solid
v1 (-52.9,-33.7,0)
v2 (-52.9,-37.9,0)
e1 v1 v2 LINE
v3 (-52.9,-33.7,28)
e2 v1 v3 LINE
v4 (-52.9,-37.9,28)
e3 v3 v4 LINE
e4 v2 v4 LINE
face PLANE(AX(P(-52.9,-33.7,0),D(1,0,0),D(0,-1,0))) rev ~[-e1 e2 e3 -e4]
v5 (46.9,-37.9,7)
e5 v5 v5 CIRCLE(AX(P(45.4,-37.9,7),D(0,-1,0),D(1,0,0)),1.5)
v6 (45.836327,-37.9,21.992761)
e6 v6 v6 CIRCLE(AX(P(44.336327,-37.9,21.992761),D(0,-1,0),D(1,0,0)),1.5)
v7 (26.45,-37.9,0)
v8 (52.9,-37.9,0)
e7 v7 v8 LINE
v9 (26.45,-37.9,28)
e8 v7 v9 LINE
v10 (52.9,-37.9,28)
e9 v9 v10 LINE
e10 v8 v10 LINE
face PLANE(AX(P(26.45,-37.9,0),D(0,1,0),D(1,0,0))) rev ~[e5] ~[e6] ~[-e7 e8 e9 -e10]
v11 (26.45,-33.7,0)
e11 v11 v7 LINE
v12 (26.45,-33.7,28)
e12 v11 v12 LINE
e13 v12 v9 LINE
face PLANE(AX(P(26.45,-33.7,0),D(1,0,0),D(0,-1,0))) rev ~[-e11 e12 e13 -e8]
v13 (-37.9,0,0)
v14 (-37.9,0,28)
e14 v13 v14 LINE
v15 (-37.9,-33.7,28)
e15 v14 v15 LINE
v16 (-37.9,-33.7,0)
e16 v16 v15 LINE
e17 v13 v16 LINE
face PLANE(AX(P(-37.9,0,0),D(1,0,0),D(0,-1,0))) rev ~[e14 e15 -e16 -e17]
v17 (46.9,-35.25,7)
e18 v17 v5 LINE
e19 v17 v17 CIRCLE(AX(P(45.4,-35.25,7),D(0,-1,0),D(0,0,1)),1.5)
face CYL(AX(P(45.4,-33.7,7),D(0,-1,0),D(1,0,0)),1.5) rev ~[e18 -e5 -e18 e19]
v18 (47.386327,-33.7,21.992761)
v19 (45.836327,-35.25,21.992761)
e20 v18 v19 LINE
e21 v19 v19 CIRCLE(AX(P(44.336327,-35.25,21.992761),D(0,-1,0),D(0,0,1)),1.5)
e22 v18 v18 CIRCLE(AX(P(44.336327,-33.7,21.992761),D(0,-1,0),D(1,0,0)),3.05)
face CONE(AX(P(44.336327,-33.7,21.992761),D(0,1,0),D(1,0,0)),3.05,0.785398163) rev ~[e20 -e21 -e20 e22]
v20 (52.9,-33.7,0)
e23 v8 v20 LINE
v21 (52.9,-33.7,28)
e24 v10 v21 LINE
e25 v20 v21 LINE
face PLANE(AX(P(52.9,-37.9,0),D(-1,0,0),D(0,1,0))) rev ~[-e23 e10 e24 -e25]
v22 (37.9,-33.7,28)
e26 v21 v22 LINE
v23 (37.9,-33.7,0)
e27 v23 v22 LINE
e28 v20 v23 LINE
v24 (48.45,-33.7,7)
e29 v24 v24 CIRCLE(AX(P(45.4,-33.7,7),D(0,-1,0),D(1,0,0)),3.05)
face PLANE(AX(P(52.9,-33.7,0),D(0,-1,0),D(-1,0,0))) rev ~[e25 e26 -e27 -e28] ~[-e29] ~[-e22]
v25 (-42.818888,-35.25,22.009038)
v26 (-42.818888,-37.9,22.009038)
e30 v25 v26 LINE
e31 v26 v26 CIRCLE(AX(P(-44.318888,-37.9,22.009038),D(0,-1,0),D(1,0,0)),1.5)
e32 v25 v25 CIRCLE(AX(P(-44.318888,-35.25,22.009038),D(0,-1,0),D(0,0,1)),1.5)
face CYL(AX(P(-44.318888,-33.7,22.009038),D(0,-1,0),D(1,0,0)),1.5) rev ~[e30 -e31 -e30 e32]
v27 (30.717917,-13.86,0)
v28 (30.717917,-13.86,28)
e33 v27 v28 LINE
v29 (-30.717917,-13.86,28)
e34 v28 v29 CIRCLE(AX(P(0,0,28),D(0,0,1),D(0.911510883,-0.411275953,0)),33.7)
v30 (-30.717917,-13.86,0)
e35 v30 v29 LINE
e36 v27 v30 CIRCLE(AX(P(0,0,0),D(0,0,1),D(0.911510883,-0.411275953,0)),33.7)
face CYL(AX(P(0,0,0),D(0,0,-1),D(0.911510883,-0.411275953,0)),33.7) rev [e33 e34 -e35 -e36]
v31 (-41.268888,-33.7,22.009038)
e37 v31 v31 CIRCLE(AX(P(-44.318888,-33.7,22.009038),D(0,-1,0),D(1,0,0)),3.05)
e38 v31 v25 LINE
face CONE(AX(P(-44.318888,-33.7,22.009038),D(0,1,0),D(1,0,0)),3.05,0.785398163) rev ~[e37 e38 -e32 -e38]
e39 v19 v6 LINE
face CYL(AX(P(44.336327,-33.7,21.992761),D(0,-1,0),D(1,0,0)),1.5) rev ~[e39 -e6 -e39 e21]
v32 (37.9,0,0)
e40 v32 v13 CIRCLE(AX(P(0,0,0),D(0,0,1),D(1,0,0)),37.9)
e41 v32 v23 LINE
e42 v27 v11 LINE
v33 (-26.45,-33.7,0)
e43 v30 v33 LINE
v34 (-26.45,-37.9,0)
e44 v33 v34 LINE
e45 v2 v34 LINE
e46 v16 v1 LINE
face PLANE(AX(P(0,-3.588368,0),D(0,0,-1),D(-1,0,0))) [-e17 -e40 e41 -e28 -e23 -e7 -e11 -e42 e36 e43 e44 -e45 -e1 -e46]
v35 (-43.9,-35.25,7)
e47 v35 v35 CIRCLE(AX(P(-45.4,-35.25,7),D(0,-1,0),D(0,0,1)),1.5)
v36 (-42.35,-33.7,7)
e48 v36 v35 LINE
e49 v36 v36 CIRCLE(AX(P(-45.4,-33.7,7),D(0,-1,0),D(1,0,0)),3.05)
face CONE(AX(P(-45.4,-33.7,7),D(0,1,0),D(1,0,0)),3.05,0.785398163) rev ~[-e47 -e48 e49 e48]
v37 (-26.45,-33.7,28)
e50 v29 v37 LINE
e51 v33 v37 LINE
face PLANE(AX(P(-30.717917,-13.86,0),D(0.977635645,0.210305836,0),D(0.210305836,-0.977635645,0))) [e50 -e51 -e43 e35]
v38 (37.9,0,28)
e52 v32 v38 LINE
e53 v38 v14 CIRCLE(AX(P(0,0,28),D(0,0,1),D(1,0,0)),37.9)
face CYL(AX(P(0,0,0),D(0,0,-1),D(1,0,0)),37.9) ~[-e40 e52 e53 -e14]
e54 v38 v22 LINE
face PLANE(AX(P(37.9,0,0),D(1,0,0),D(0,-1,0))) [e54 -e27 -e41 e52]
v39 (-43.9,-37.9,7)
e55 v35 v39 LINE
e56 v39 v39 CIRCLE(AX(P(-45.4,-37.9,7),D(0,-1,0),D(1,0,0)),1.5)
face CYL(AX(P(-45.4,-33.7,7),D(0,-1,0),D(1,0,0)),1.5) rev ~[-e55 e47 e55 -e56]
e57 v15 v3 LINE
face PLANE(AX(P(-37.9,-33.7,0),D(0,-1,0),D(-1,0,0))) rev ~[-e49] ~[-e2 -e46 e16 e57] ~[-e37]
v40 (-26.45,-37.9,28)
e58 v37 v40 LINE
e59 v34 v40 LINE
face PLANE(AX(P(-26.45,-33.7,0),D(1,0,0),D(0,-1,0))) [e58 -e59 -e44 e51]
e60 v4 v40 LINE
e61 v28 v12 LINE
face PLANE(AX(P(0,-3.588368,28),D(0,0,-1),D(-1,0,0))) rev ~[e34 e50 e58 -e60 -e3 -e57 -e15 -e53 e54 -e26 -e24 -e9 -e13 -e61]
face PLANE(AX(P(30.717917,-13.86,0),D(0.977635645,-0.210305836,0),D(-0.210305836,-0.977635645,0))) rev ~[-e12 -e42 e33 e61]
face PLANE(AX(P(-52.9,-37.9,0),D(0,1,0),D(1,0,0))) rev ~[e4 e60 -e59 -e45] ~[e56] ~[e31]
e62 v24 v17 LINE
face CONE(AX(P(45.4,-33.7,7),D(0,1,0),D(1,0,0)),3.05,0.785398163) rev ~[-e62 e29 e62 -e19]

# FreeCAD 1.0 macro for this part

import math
import FreeCAD as App
import Part
import Sketcher
from FreeCAD import Vector
Q = App.Units.Quantity

doc = App.newDocument("Part")
body = doc.addObject("PartDesign::Body", "Body")

sketch1 = body.newObject("Sketcher::SketchObject", "Sketch")
sketch1.AttachmentSupport = (doc.getObject("XY_Plane"), [""])
sketch1.MapMode = "FlatFace"
sketch1.addGeometry([
    Part.ArcOfCircle(Part.Circle(Vector(0, 0, 0), Vector(0, 0, 1), 33.7), math.radians(-24), math.radians(204)),
    Part.LineSegment(Vector(30.7, -13.9, 0), Vector(26.4, -33.7, 0)),
    Part.LineSegment(Vector(26.4, -33.7, 0), Vector(26.4, -37.9, 0)),
    Part.LineSegment(Vector(26.4, -37.9, 0), Vector(52.9, -37.9, 0)),
    Part.LineSegment(Vector(52.9, -37.9, 0), Vector(52.9, -33.7, 0)),
    Part.LineSegment(Vector(52.9, -33.7, 0), Vector(37.9, -33.7, 0)),
    Part.LineSegment(Vector(37.9, -33.7, 0), Vector(37.9, 0, 0)),
    Part.ArcOfCircle(Part.Circle(Vector(0, 0, 0), Vector(0, 0, 1), 37.9), math.radians(0), math.radians(180)),
    Part.LineSegment(Vector(-37.9, 0, 0), Vector(-37.9, -33.7, 0)),
    Part.LineSegment(Vector(-37.9, -33.7, 0), Vector(-52.9, -33.7, 0)),
    Part.LineSegment(Vector(-52.9, -33.7, 0), Vector(-52.9, -37.9, 0)),
    Part.LineSegment(Vector(-52.9, -37.9, 0), Vector(-26.4, -37.9, 0)),
    Part.LineSegment(Vector(-26.4, -37.9, 0), Vector(-26.4, -33.7, 0)),
    Part.LineSegment(Vector(-26.4, -33.7, 0), Vector(-30.7, -13.9, 0)),
], False)
sketch1.addConstraint([
    Sketcher.Constraint("Coincident", 0, 1, 1, 1),
    Sketcher.Constraint("Coincident", 1, 2, 2, 1),
    Sketcher.Constraint("Coincident", 2, 2, 3, 1),
    Sketcher.Constraint("Coincident", 3, 2, 4, 1),
    Sketcher.Constraint("Coincident", 4, 2, 5, 1),
    Sketcher.Constraint("Coincident", 5, 2, 6, 1),
    Sketcher.Constraint("Tangent", 6, 2, 7, 1),
    Sketcher.Constraint("Tangent", 7, 2, 8, 1),
    Sketcher.Constraint("Coincident", 8, 2, 9, 1),
    Sketcher.Constraint("Coincident", 9, 2, 10, 1),
    Sketcher.Constraint("Coincident", 10, 2, 11, 1),
    Sketcher.Constraint("Coincident", 11, 2, 12, 1),
    Sketcher.Constraint("Coincident", 12, 2, 13, 1),
    Sketcher.Constraint("Coincident", 13, 2, 0, 2),
    Sketcher.Constraint("Vertical", 2),
    Sketcher.Constraint("Horizontal", 3),
    Sketcher.Constraint("Vertical", 4),
    Sketcher.Constraint("Horizontal", 5),
    Sketcher.Constraint("Vertical", 6),
    Sketcher.Constraint("Vertical", 8),
    Sketcher.Constraint("Horizontal", 9),
    Sketcher.Constraint("Vertical", 10),
    Sketcher.Constraint("Horizontal", 11),
    Sketcher.Constraint("Vertical", 12),
    Sketcher.Constraint("Coincident", 0, 3, -1, 1),
    Sketcher.Constraint("Coincident", 7, 3, -1, 1),
    Sketcher.Constraint("Symmetric", 4, 2, 9, 2, -2),
    Sketcher.Constraint("Symmetric", 2, 2, 11, 2, -2),
    Sketcher.Constraint("Horizontal", 1, 2, 4, 2),
    Sketcher.Constraint("Horizontal", 9, 2, 12, 2),
    Sketcher.Constraint("Horizontal", 0, 1, 13, 2),
    Sketcher.Constraint("Radius", 0, Q("33.7 mm")),
    Sketcher.Constraint("Radius", 7, Q("37.9 mm")),
    Sketcher.Constraint("DistanceX", 5, 2, 5, 1, Q("15 mm")),
    Sketcher.Constraint("DistanceY", 2, 2, 2, 1, Q("4.2 mm")),
    Sketcher.Constraint("DistanceY", 6, 1, 6, 2, Q("33.7 mm")),
    Sketcher.Constraint("DistanceX", 3, 1, 3, 2, Q("26.45 mm")),
    Sketcher.Constraint("DistanceY", 0, 1, -1, 1, Q("13.86 mm")),
])
pad1 = body.newObject("PartDesign::Pad", "Pad")
pad1.Profile = sketch1
pad1.Length = 28

sketch2 = body.newObject("Sketcher::SketchObject", "Sketch001")
sketch2.AttachmentSupport = (doc.getObject("XZ_Plane"), [""])
sketch2.MapMode = "FlatFace"
sketch2.AttachmentOffset = App.Placement(Vector(0, 0, 33.7), App.Rotation())
sketch2.addGeometry([
    Part.Circle(Vector(-45.4, 7, 0), Vector(0, 0, 1), 1.5),
    Part.Circle(Vector(45.4, 7, 0), Vector(0, 0, 1), 1.5),
    Part.Circle(Vector(44.3, 22, 0), Vector(0, 0, 1), 1.5),
    Part.Circle(Vector(-44.3, 22, 0), Vector(0, 0, 1), 1.5),
], False)
sketch2.addConstraint([
    Sketcher.Constraint("Equal", 0, 1),
    Sketcher.Constraint("Equal", 1, 2),
    Sketcher.Constraint("Equal", 2, 3),
    Sketcher.Constraint("Symmetric", 0, 3, 1, 3, -2),
    Sketcher.Constraint("Diameter", 0, Q("3 mm")),
    Sketcher.Constraint("DistanceY", -1, 1, 0, 3, Q("7 mm")),
    Sketcher.Constraint("DistanceX", 0, 3, -1, 1, Q("45.4 mm")),
    Sketcher.Constraint("DistanceY", -1, 1, 2, 3, Q("21.992761 mm")),
    Sketcher.Constraint("DistanceY", -1, 1, 3, 3, Q("22.009038 mm")),
    Sketcher.Constraint("DistanceX", 0, 3, 3, 3, Q("1.081112 mm")),
    Sketcher.Constraint("DistanceX", -1, 1, 2, 3, Q("44.336327 mm")),
])
doc.recompute()
hole = body.newObject("PartDesign::Hole", "Hole")
hole.Profile = sketch2
hole.ThreadType = "None"
hole.Diameter = 3
hole.DepthType = "Dimension"
hole.Depth = 25
hole.DrillPoint = "Flat"
hole.HoleCutType = "Countersink"
hole.HoleCutDiameter = 6.1
hole.HoleCutCountersinkAngle = 90
hole.Reversed = True

doc.recompute()
